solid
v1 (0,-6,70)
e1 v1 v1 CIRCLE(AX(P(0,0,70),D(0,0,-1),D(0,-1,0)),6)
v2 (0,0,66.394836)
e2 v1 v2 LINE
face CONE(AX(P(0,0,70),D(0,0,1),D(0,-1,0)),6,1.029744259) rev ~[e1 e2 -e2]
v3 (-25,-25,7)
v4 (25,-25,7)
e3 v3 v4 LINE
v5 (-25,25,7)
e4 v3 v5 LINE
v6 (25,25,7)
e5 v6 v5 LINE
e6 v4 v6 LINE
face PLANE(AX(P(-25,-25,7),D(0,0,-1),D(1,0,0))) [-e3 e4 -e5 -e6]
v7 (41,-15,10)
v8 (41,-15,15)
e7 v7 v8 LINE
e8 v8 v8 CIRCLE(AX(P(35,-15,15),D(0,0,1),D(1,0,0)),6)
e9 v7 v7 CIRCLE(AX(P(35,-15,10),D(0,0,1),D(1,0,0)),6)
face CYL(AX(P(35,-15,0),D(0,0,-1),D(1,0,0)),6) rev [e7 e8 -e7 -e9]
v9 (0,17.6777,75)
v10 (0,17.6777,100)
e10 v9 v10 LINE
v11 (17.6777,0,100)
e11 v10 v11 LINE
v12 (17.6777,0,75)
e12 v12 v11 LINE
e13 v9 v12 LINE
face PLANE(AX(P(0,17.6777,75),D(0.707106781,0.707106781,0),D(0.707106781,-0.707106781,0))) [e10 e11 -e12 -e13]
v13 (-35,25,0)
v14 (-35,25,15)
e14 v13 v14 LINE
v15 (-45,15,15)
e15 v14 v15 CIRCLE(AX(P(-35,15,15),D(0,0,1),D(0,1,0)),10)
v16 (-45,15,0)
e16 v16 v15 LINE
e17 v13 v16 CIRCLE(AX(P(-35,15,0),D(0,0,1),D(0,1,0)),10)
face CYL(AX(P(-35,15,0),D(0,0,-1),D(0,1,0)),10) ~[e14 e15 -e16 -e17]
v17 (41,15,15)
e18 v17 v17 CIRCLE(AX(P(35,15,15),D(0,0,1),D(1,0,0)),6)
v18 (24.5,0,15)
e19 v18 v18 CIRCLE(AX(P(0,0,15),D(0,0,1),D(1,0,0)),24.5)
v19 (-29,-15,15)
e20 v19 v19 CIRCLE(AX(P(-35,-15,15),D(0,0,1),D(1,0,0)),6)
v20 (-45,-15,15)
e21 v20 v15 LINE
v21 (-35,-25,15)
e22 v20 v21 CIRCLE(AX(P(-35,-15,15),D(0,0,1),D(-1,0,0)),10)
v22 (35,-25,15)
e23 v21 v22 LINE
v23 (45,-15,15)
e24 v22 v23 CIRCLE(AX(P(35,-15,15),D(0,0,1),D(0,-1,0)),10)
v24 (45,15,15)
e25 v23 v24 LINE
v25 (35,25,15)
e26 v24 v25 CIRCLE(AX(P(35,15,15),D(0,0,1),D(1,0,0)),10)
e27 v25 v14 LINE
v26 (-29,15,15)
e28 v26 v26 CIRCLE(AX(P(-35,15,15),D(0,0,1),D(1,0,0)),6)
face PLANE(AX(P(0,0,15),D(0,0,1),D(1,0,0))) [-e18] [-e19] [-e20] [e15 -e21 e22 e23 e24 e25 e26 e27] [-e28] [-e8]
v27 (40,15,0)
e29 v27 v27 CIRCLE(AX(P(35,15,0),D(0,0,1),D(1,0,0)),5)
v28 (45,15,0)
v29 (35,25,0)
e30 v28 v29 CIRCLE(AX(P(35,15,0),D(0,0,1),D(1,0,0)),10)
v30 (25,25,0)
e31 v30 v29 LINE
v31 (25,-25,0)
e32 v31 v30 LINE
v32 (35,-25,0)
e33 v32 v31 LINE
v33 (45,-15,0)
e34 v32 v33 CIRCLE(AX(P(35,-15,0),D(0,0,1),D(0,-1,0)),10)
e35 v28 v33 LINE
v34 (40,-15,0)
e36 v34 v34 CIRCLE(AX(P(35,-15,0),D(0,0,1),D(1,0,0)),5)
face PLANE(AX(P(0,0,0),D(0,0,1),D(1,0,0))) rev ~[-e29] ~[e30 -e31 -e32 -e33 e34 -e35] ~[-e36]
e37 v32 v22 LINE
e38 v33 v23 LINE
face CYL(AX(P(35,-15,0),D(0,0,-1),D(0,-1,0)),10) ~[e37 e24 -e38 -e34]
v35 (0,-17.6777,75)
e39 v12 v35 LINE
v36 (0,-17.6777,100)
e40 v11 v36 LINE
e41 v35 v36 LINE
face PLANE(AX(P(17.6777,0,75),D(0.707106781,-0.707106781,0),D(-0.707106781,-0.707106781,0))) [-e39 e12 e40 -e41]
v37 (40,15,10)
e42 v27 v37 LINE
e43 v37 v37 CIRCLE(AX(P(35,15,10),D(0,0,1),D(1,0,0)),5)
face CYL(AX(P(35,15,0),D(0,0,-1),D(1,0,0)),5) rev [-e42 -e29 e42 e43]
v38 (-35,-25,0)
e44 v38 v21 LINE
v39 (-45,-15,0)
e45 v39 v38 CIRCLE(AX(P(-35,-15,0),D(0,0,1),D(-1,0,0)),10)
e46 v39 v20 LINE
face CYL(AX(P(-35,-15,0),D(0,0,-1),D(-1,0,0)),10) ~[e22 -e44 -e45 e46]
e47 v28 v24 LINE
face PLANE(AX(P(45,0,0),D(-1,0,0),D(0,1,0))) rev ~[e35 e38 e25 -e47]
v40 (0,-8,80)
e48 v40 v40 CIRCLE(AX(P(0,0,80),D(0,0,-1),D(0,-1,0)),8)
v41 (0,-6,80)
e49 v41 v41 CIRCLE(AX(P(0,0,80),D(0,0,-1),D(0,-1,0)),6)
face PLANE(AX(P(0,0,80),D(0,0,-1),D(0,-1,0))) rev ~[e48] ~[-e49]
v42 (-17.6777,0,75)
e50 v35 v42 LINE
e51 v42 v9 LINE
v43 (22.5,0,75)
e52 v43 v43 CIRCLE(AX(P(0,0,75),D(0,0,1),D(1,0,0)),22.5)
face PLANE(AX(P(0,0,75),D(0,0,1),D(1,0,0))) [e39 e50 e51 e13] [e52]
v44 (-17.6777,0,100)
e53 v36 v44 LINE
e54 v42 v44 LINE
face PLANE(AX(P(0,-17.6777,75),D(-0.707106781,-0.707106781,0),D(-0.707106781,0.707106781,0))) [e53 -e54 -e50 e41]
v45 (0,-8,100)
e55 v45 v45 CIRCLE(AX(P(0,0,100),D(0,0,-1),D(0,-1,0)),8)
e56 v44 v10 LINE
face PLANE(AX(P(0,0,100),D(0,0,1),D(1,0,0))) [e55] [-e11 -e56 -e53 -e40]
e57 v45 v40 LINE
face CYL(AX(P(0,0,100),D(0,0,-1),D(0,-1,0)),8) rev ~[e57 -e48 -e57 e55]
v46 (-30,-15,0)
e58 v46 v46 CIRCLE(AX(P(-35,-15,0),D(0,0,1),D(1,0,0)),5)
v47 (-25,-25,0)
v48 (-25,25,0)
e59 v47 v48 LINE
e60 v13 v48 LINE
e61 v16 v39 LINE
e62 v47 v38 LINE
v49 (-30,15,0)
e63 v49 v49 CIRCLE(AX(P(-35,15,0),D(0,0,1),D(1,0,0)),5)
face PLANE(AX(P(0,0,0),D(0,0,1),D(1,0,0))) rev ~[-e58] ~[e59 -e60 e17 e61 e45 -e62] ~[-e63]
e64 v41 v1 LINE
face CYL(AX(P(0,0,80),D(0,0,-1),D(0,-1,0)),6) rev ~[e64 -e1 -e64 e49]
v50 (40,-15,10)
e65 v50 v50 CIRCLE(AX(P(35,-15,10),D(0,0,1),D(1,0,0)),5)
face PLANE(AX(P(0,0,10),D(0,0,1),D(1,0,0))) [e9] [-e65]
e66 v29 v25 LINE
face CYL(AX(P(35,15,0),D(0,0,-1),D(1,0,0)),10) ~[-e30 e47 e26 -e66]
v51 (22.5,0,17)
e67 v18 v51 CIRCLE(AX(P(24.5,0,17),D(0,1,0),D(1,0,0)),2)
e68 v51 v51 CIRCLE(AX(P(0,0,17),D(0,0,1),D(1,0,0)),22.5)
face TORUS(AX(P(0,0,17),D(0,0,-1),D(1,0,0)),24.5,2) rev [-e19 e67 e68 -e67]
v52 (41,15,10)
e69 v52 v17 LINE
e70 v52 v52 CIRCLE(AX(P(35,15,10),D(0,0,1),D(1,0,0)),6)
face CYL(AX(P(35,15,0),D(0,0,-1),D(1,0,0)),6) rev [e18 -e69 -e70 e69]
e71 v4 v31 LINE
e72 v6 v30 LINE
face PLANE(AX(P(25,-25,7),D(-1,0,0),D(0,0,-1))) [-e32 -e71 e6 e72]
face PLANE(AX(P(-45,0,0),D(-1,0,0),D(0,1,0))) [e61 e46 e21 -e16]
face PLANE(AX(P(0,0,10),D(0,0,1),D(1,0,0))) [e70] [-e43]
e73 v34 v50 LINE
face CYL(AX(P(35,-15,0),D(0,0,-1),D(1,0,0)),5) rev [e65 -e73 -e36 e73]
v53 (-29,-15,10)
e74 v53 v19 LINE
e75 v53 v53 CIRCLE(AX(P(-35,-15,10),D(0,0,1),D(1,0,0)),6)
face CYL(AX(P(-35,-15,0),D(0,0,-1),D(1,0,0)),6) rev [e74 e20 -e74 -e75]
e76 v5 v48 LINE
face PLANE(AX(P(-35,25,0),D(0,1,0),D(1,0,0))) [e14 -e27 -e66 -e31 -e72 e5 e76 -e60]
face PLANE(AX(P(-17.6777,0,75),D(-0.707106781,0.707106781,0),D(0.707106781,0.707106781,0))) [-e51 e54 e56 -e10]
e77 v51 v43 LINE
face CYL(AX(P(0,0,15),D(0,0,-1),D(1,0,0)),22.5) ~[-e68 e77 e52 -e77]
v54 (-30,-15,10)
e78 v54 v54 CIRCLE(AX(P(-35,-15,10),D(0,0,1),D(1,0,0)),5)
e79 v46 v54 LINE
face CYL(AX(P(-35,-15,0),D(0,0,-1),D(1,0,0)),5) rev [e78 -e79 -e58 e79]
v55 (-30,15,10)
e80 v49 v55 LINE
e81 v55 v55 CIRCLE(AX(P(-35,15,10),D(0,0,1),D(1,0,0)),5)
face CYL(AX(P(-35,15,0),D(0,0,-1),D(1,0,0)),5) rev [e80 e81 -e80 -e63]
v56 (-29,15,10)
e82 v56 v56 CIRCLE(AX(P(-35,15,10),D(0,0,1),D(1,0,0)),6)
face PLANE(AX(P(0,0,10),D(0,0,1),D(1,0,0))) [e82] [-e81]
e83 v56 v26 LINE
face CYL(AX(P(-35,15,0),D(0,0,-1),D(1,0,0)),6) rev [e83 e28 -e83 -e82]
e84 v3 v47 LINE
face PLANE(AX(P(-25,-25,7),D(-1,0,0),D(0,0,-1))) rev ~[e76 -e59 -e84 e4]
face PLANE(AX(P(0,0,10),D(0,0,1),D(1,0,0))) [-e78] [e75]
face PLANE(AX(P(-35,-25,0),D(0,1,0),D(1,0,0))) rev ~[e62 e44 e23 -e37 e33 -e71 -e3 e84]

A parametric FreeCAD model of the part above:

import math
import FreeCAD as App
import Part
import Sketcher
Q = App.Units.Quantity


def edges_at(feature, points):
    """Names of the edges that pass closest to the given points."""
    edges = feature.Shape.Edges
    near = lambda p: min(range(len(edges)), key=lambda i: edges[i].distToShape(Part.Vertex(*p))[0])
    return sorted({f"Edge{near(p) + 1}" for p in points})

doc = App.newDocument("Part")
body = doc.addObject("PartDesign::Body", "Body")

# Sketch on XY plane
sketch1 = body.newObject("Sketcher::SketchObject", "Sketch")
sketch1.AttachmentSupport = (doc.getObject("XY_Plane"), [""])
sketch1.MapMode = "FlatFace"
sketch1.addGeometry(Part.LineSegment(App.Vector(-45, 15, 0), App.Vector(-45, -15, 0)), False)
sketch1.addGeometry(Part.ArcOfCircle(Part.Circle(App.Vector(-35, -15, 0), App.Vector(0, 0, 1), 10), math.radians(180), math.radians(270)), False)
sketch1.addGeometry(Part.LineSegment(App.Vector(-35, -25, 0), App.Vector(35, -25, 0)), False)
sketch1.addGeometry(Part.ArcOfCircle(Part.Circle(App.Vector(35, -15, 0), App.Vector(0, 0, 1), 10), math.radians(-90), math.radians(0)), False)
sketch1.addGeometry(Part.LineSegment(App.Vector(45, -15, 0), App.Vector(45, 15, 0)), False)
sketch1.addGeometry(Part.ArcOfCircle(Part.Circle(App.Vector(35, 15, 0), App.Vector(0, 0, 1), 10), math.radians(0), math.radians(90)), False)
sketch1.addGeometry(Part.LineSegment(App.Vector(35, 25, 0), App.Vector(-35, 25, 0)), False)
sketch1.addGeometry(Part.ArcOfCircle(Part.Circle(App.Vector(-35, 15, 0), App.Vector(0, 0, 1), 10), math.radians(90), math.radians(180)), False)
sketch1.addGeometry(Part.Circle(App.Vector(-35, 15, 0), App.Vector(0, 0, 1), 6), False)
sketch1.addGeometry(Part.Circle(App.Vector(35, 15, 0), App.Vector(0, 0, 1), 6), False)
sketch1.addGeometry(Part.Circle(App.Vector(-35, -15, 0), App.Vector(0, 0, 1), 6), False)
sketch1.addGeometry(Part.Circle(App.Vector(35, -15, 0), App.Vector(0, 0, 1), 6), False)
sketch1.addConstraint(Sketcher.Constraint("Tangent", 0, 2, 1, 1))
sketch1.addConstraint(Sketcher.Constraint("Tangent", 1, 2, 2, 1))
sketch1.addConstraint(Sketcher.Constraint("Tangent", 2, 2, 3, 1))
sketch1.addConstraint(Sketcher.Constraint("Tangent", 3, 2, 4, 1))
sketch1.addConstraint(Sketcher.Constraint("Tangent", 4, 2, 5, 1))
sketch1.addConstraint(Sketcher.Constraint("Tangent", 5, 2, 6, 1))
sketch1.addConstraint(Sketcher.Constraint("Tangent", 6, 2, 7, 1))
sketch1.addConstraint(Sketcher.Constraint("Tangent", 7, 2, 0, 1))
sketch1.addConstraint(Sketcher.Constraint("Vertical", 0))
sketch1.addConstraint(Sketcher.Constraint("Horizontal", 2))
sketch1.addConstraint(Sketcher.Constraint("Vertical", 4))
sketch1.addConstraint(Sketcher.Constraint("Horizontal", 6))
sketch1.addConstraint(Sketcher.Constraint("Coincident", 8, 3, 7, 3))
sketch1.addConstraint(Sketcher.Constraint("Coincident", 9, 3, 5, 3))
sketch1.addConstraint(Sketcher.Constraint("Coincident", 10, 3, 1, 3))
sketch1.addConstraint(Sketcher.Constraint("Coincident", 11, 3, 3, 3))
sketch1.addConstraint(Sketcher.Constraint("Equal", 1, 3))
sketch1.addConstraint(Sketcher.Constraint("Equal", 3, 5))
sketch1.addConstraint(Sketcher.Constraint("Equal", 5, 7))
sketch1.addConstraint(Sketcher.Constraint("Equal", 8, 9))
sketch1.addConstraint(Sketcher.Constraint("Equal", 9, 10))
sketch1.addConstraint(Sketcher.Constraint("Equal", 10, 11))
sketch1.addConstraint(Sketcher.Constraint("Symmetric", 1, 3, 5, 3, -1, 1))
sketch1.addConstraint(Sketcher.Constraint("Diameter", 8, Q("12 mm")))
sketch1.addConstraint(Sketcher.Constraint("Radius", 1, Q("10 mm")))
sketch1.addConstraint(Sketcher.Constraint("DistanceX", 2, 1, 2, 2, Q("70 mm")))
sketch1.addConstraint(Sketcher.Constraint("DistanceY", 0, 2, 0, 1, Q("30 mm")))
pad1 = body.newObject("PartDesign::Pad", "Pad")
pad1.Profile = sketch1
pad1.Length = 15

# Sketch on XY plane
sketch2 = body.newObject("Sketcher::SketchObject", "Sketch001")
sketch2.AttachmentSupport = (doc.getObject("XY_Plane"), [""])
sketch2.MapMode = "FlatFace"
sketch2.addGeometry(Part.Circle(App.Vector(-35, 15, 0), App.Vector(0, 0, 1), 6), False)
sketch2.addGeometry(Part.Circle(App.Vector(-35, 15, 0), App.Vector(0, 0, 1), 5), False)
sketch2.addGeometry(Part.Circle(App.Vector(-35, -15, 0), App.Vector(0, 0, 1), 6), False)
sketch2.addGeometry(Part.Circle(App.Vector(-35, -15, 0), App.Vector(0, 0, 1), 5), False)
sketch2.addGeometry(Part.Circle(App.Vector(35, 15, 0), App.Vector(0, 0, 1), 6), False)
sketch2.addGeometry(Part.Circle(App.Vector(35, 15, 0), App.Vector(0, 0, 1), 5), False)
sketch2.addGeometry(Part.Circle(App.Vector(35, -15, 0), App.Vector(0, 0, 1), 6), False)
sketch2.addGeometry(Part.Circle(App.Vector(35, -15, 0), App.Vector(0, 0, 1), 5), False)
sketch2.addConstraint(Sketcher.Constraint("Coincident", 1, 3, 0, 3))
sketch2.addConstraint(Sketcher.Constraint("Coincident", 3, 3, 2, 3))
sketch2.addConstraint(Sketcher.Constraint("Coincident", 5, 3, 4, 3))
sketch2.addConstraint(Sketcher.Constraint("Coincident", 7, 3, 6, 3))
sketch2.addConstraint(Sketcher.Constraint("Equal", 0, 2))
sketch2.addConstraint(Sketcher.Constraint("Equal", 1, 3))
sketch2.addConstraint(Sketcher.Constraint("Equal", 2, 4))
sketch2.addConstraint(Sketcher.Constraint("Equal", 3, 5))
sketch2.addConstraint(Sketcher.Constraint("Equal", 4, 6))
sketch2.addConstraint(Sketcher.Constraint("Equal", 5, 7))
sketch2.addConstraint(Sketcher.Constraint("Symmetric", 2, 3, 4, 3, -1, 1))
sketch2.addConstraint(Sketcher.Constraint("Symmetric", 0, 3, 6, 3, -1, 1))
sketch2.addConstraint(Sketcher.Constraint("Symmetric", 0, 3, 4, 3, -2))
sketch2.addConstraint(Sketcher.Constraint("Diameter", 0, Q("12 mm")))
sketch2.addConstraint(Sketcher.Constraint("Diameter", 1, Q("10 mm")))
sketch2.addConstraint(Sketcher.Constraint("DistanceX", 0, 3, -1, 1, Q("35 mm")))
sketch2.addConstraint(Sketcher.Constraint("DistanceY", -1, 1, 0, 3, Q("15 mm")))
pad2 = body.newObject("PartDesign::Pad", "Pad001")
pad2.Profile = sketch2
pad2.Length = 10

# Sketch on XZ plane
sketch3 = body.newObject("Sketcher::SketchObject", "Sketch002")
sketch3.AttachmentSupport = (doc.getObject("XZ_Plane"), [""])
sketch3.MapMode = "FlatFace"
sketch3.AttachmentOffset = App.Placement(App.Vector(0, 0, 25), App.Rotation())
sketch3.addGeometry(Part.LineSegment(App.Vector(-25, 7, 0), App.Vector(-25, 0, 0)), False)
sketch3.addGeometry(Part.LineSegment(App.Vector(-25, 0, 0), App.Vector(25, 0, 0)), False)
sketch3.addGeometry(Part.LineSegment(App.Vector(25, 0, 0), App.Vector(25, 7, 0)), False)
sketch3.addGeometry(Part.LineSegment(App.Vector(25, 7, 0), App.Vector(-25, 7, 0)), False)
sketch3.addConstraint(Sketcher.Constraint("Coincident", 0, 2, 1, 1))
sketch3.addConstraint(Sketcher.Constraint("Coincident", 1, 2, 2, 1))
sketch3.addConstraint(Sketcher.Constraint("Coincident", 2, 2, 3, 1))
sketch3.addConstraint(Sketcher.Constraint("Coincident", 3, 2, 0, 1))
sketch3.addConstraint(Sketcher.Constraint("Vertical", 0))
sketch3.addConstraint(Sketcher.Constraint("Horizontal", 1))
sketch3.addConstraint(Sketcher.Constraint("Vertical", 2))
sketch3.addConstraint(Sketcher.Constraint("Horizontal", 3))
sketch3.addConstraint(Sketcher.Constraint("Symmetric", 0, 2, 1, 2, -1, 1))
sketch3.addConstraint(Sketcher.Constraint("DistanceX", 1, 1, 1, 2, Q("50 mm")))
sketch3.addConstraint(Sketcher.Constraint("DistanceY", 0, 2, 0, 1, Q("7 mm")))
pocket1 = body.newObject("PartDesign::Pocket", "Pocket")
pocket1.Profile = sketch3
pocket1.Length = 50

# Sketch on XY plane
sketch4 = body.newObject("Sketcher::SketchObject", "Sketch003")
sketch4.AttachmentSupport = (doc.getObject("XY_Plane"), [""])
sketch4.MapMode = "FlatFace"
sketch4.AttachmentOffset = App.Placement(App.Vector(0, 0, 15), App.Rotation())
sketch4.addGeometry(Part.Circle(App.Vector(0, 0, 0), App.Vector(0, 0, 1), 22), False)
sketch4.addConstraint(Sketcher.Constraint("Coincident", 0, 3, -1, 1))
sketch4.addConstraint(Sketcher.Constraint("Diameter", 0, Q("45 mm")))
pad3 = body.newObject("PartDesign::Pad", "Pad002")
pad3.Profile = sketch4
pad3.Length = 60

# Sketch on XY plane
sketch5 = body.newObject("Sketcher::SketchObject", "Sketch004")
sketch5.AttachmentSupport = (doc.getObject("XY_Plane"), [""])
sketch5.MapMode = "FlatFace"
sketch5.AttachmentOffset = App.Placement(App.Vector(0, 0, 75), App.Rotation())
sketch5.addGeometry(Part.LineSegment(App.Vector(0, 18, 0), App.Vector(-18, 0, 0)), False)
sketch5.addGeometry(Part.LineSegment(App.Vector(-18, 0, 0), App.Vector(0, -18, 0)), False)
sketch5.addGeometry(Part.LineSegment(App.Vector(0, -18, 0), App.Vector(18, 0, 0)), False)
sketch5.addGeometry(Part.LineSegment(App.Vector(18, 0, 0), App.Vector(0, 18, 0)), False)
sketch5.addConstraint(Sketcher.Constraint("Coincident", 0, 2, 1, 1))
sketch5.addConstraint(Sketcher.Constraint("Coincident", 1, 2, 2, 1))
sketch5.addConstraint(Sketcher.Constraint("Coincident", 2, 2, 3, 1))
sketch5.addConstraint(Sketcher.Constraint("Coincident", 3, 2, 0, 1))
sketch5.addConstraint(Sketcher.Constraint("Symmetric", 0, 2, 2, 2, -1, 1))
sketch5.addConstraint(Sketcher.Constraint("Symmetric", 1, 2, 3, 2, -1, 1))
sketch5.addConstraint(Sketcher.Constraint("PointOnObject", 0, 2, -1))
sketch5.addConstraint(Sketcher.Constraint("PointOnObject", 1, 2, -2))
sketch5.addConstraint(Sketcher.Constraint("Perpendicular", 0, 1))
sketch5.addConstraint(Sketcher.Constraint("Distance", 0, Q("25 mm")))
pad4 = body.newObject("PartDesign::Pad", "Pad003")
pad4.Profile = sketch5
pad4.Length = 25
doc.recompute()

fillet = body.newObject("PartDesign::Fillet", "Fillet")
fillet.Base = (pad4, edges_at(pad4, [(-22.5, 0, 15)]))
fillet.Radius = 2

# Sketch on XY plane
sketch6 = body.newObject("Sketcher::SketchObject", "Sketch005")
sketch6.AttachmentSupport = (doc.getObject("XY_Plane"), [""])
sketch6.MapMode = "FlatFace"
sketch6.AttachmentOffset = App.Placement(App.Vector(0, 0, 100), App.Rotation())
sketch6.addGeometry(Part.Circle(App.Vector(0, 0, 0), App.Vector(0, 0, 1), 8), False)
sketch6.addConstraint(Sketcher.Constraint("Coincident", 0, 3, -1, 1))
sketch6.addConstraint(Sketcher.Constraint("Diameter", 0, Q("16 mm")))
doc.recompute()
hole = body.newObject("PartDesign::Hole", "Hole")
hole.Profile = sketch6
hole.ThreadType = "None"
hole.Diameter = 16
hole.DepthType = "Dimension"
hole.Depth = 20
hole.DrillPoint = "Flat"

# Sketch on XY plane
sketch7 = body.newObject("Sketcher::SketchObject", "Sketch006")
sketch7.AttachmentSupport = (doc.getObject("XY_Plane"), [""])
sketch7.MapMode = "FlatFace"
sketch7.AttachmentOffset = App.Placement(App.Vector(0, 0, 80), App.Rotation())
sketch7.addGeometry(Part.Circle(App.Vector(0, 0, 0), App.Vector(0, 0, 1), 6), False)
sketch7.addConstraint(Sketcher.Constraint("Coincident", 0, 3, -1, 1))
sketch7.addConstraint(Sketcher.Constraint("Diameter", 0, Q("12 mm")))
doc.recompute()
hole2 = body.newObject("PartDesign::Hole", "Hole001")
hole2.Profile = sketch7
hole2.ThreadType = "None"
hole2.Diameter = 12
hole2.DepthType = "Dimension"
hole2.Depth = 10
hole2.DrillPoint = "Angled"
hole2.DrillPointAngle = 118

doc.recompute()
